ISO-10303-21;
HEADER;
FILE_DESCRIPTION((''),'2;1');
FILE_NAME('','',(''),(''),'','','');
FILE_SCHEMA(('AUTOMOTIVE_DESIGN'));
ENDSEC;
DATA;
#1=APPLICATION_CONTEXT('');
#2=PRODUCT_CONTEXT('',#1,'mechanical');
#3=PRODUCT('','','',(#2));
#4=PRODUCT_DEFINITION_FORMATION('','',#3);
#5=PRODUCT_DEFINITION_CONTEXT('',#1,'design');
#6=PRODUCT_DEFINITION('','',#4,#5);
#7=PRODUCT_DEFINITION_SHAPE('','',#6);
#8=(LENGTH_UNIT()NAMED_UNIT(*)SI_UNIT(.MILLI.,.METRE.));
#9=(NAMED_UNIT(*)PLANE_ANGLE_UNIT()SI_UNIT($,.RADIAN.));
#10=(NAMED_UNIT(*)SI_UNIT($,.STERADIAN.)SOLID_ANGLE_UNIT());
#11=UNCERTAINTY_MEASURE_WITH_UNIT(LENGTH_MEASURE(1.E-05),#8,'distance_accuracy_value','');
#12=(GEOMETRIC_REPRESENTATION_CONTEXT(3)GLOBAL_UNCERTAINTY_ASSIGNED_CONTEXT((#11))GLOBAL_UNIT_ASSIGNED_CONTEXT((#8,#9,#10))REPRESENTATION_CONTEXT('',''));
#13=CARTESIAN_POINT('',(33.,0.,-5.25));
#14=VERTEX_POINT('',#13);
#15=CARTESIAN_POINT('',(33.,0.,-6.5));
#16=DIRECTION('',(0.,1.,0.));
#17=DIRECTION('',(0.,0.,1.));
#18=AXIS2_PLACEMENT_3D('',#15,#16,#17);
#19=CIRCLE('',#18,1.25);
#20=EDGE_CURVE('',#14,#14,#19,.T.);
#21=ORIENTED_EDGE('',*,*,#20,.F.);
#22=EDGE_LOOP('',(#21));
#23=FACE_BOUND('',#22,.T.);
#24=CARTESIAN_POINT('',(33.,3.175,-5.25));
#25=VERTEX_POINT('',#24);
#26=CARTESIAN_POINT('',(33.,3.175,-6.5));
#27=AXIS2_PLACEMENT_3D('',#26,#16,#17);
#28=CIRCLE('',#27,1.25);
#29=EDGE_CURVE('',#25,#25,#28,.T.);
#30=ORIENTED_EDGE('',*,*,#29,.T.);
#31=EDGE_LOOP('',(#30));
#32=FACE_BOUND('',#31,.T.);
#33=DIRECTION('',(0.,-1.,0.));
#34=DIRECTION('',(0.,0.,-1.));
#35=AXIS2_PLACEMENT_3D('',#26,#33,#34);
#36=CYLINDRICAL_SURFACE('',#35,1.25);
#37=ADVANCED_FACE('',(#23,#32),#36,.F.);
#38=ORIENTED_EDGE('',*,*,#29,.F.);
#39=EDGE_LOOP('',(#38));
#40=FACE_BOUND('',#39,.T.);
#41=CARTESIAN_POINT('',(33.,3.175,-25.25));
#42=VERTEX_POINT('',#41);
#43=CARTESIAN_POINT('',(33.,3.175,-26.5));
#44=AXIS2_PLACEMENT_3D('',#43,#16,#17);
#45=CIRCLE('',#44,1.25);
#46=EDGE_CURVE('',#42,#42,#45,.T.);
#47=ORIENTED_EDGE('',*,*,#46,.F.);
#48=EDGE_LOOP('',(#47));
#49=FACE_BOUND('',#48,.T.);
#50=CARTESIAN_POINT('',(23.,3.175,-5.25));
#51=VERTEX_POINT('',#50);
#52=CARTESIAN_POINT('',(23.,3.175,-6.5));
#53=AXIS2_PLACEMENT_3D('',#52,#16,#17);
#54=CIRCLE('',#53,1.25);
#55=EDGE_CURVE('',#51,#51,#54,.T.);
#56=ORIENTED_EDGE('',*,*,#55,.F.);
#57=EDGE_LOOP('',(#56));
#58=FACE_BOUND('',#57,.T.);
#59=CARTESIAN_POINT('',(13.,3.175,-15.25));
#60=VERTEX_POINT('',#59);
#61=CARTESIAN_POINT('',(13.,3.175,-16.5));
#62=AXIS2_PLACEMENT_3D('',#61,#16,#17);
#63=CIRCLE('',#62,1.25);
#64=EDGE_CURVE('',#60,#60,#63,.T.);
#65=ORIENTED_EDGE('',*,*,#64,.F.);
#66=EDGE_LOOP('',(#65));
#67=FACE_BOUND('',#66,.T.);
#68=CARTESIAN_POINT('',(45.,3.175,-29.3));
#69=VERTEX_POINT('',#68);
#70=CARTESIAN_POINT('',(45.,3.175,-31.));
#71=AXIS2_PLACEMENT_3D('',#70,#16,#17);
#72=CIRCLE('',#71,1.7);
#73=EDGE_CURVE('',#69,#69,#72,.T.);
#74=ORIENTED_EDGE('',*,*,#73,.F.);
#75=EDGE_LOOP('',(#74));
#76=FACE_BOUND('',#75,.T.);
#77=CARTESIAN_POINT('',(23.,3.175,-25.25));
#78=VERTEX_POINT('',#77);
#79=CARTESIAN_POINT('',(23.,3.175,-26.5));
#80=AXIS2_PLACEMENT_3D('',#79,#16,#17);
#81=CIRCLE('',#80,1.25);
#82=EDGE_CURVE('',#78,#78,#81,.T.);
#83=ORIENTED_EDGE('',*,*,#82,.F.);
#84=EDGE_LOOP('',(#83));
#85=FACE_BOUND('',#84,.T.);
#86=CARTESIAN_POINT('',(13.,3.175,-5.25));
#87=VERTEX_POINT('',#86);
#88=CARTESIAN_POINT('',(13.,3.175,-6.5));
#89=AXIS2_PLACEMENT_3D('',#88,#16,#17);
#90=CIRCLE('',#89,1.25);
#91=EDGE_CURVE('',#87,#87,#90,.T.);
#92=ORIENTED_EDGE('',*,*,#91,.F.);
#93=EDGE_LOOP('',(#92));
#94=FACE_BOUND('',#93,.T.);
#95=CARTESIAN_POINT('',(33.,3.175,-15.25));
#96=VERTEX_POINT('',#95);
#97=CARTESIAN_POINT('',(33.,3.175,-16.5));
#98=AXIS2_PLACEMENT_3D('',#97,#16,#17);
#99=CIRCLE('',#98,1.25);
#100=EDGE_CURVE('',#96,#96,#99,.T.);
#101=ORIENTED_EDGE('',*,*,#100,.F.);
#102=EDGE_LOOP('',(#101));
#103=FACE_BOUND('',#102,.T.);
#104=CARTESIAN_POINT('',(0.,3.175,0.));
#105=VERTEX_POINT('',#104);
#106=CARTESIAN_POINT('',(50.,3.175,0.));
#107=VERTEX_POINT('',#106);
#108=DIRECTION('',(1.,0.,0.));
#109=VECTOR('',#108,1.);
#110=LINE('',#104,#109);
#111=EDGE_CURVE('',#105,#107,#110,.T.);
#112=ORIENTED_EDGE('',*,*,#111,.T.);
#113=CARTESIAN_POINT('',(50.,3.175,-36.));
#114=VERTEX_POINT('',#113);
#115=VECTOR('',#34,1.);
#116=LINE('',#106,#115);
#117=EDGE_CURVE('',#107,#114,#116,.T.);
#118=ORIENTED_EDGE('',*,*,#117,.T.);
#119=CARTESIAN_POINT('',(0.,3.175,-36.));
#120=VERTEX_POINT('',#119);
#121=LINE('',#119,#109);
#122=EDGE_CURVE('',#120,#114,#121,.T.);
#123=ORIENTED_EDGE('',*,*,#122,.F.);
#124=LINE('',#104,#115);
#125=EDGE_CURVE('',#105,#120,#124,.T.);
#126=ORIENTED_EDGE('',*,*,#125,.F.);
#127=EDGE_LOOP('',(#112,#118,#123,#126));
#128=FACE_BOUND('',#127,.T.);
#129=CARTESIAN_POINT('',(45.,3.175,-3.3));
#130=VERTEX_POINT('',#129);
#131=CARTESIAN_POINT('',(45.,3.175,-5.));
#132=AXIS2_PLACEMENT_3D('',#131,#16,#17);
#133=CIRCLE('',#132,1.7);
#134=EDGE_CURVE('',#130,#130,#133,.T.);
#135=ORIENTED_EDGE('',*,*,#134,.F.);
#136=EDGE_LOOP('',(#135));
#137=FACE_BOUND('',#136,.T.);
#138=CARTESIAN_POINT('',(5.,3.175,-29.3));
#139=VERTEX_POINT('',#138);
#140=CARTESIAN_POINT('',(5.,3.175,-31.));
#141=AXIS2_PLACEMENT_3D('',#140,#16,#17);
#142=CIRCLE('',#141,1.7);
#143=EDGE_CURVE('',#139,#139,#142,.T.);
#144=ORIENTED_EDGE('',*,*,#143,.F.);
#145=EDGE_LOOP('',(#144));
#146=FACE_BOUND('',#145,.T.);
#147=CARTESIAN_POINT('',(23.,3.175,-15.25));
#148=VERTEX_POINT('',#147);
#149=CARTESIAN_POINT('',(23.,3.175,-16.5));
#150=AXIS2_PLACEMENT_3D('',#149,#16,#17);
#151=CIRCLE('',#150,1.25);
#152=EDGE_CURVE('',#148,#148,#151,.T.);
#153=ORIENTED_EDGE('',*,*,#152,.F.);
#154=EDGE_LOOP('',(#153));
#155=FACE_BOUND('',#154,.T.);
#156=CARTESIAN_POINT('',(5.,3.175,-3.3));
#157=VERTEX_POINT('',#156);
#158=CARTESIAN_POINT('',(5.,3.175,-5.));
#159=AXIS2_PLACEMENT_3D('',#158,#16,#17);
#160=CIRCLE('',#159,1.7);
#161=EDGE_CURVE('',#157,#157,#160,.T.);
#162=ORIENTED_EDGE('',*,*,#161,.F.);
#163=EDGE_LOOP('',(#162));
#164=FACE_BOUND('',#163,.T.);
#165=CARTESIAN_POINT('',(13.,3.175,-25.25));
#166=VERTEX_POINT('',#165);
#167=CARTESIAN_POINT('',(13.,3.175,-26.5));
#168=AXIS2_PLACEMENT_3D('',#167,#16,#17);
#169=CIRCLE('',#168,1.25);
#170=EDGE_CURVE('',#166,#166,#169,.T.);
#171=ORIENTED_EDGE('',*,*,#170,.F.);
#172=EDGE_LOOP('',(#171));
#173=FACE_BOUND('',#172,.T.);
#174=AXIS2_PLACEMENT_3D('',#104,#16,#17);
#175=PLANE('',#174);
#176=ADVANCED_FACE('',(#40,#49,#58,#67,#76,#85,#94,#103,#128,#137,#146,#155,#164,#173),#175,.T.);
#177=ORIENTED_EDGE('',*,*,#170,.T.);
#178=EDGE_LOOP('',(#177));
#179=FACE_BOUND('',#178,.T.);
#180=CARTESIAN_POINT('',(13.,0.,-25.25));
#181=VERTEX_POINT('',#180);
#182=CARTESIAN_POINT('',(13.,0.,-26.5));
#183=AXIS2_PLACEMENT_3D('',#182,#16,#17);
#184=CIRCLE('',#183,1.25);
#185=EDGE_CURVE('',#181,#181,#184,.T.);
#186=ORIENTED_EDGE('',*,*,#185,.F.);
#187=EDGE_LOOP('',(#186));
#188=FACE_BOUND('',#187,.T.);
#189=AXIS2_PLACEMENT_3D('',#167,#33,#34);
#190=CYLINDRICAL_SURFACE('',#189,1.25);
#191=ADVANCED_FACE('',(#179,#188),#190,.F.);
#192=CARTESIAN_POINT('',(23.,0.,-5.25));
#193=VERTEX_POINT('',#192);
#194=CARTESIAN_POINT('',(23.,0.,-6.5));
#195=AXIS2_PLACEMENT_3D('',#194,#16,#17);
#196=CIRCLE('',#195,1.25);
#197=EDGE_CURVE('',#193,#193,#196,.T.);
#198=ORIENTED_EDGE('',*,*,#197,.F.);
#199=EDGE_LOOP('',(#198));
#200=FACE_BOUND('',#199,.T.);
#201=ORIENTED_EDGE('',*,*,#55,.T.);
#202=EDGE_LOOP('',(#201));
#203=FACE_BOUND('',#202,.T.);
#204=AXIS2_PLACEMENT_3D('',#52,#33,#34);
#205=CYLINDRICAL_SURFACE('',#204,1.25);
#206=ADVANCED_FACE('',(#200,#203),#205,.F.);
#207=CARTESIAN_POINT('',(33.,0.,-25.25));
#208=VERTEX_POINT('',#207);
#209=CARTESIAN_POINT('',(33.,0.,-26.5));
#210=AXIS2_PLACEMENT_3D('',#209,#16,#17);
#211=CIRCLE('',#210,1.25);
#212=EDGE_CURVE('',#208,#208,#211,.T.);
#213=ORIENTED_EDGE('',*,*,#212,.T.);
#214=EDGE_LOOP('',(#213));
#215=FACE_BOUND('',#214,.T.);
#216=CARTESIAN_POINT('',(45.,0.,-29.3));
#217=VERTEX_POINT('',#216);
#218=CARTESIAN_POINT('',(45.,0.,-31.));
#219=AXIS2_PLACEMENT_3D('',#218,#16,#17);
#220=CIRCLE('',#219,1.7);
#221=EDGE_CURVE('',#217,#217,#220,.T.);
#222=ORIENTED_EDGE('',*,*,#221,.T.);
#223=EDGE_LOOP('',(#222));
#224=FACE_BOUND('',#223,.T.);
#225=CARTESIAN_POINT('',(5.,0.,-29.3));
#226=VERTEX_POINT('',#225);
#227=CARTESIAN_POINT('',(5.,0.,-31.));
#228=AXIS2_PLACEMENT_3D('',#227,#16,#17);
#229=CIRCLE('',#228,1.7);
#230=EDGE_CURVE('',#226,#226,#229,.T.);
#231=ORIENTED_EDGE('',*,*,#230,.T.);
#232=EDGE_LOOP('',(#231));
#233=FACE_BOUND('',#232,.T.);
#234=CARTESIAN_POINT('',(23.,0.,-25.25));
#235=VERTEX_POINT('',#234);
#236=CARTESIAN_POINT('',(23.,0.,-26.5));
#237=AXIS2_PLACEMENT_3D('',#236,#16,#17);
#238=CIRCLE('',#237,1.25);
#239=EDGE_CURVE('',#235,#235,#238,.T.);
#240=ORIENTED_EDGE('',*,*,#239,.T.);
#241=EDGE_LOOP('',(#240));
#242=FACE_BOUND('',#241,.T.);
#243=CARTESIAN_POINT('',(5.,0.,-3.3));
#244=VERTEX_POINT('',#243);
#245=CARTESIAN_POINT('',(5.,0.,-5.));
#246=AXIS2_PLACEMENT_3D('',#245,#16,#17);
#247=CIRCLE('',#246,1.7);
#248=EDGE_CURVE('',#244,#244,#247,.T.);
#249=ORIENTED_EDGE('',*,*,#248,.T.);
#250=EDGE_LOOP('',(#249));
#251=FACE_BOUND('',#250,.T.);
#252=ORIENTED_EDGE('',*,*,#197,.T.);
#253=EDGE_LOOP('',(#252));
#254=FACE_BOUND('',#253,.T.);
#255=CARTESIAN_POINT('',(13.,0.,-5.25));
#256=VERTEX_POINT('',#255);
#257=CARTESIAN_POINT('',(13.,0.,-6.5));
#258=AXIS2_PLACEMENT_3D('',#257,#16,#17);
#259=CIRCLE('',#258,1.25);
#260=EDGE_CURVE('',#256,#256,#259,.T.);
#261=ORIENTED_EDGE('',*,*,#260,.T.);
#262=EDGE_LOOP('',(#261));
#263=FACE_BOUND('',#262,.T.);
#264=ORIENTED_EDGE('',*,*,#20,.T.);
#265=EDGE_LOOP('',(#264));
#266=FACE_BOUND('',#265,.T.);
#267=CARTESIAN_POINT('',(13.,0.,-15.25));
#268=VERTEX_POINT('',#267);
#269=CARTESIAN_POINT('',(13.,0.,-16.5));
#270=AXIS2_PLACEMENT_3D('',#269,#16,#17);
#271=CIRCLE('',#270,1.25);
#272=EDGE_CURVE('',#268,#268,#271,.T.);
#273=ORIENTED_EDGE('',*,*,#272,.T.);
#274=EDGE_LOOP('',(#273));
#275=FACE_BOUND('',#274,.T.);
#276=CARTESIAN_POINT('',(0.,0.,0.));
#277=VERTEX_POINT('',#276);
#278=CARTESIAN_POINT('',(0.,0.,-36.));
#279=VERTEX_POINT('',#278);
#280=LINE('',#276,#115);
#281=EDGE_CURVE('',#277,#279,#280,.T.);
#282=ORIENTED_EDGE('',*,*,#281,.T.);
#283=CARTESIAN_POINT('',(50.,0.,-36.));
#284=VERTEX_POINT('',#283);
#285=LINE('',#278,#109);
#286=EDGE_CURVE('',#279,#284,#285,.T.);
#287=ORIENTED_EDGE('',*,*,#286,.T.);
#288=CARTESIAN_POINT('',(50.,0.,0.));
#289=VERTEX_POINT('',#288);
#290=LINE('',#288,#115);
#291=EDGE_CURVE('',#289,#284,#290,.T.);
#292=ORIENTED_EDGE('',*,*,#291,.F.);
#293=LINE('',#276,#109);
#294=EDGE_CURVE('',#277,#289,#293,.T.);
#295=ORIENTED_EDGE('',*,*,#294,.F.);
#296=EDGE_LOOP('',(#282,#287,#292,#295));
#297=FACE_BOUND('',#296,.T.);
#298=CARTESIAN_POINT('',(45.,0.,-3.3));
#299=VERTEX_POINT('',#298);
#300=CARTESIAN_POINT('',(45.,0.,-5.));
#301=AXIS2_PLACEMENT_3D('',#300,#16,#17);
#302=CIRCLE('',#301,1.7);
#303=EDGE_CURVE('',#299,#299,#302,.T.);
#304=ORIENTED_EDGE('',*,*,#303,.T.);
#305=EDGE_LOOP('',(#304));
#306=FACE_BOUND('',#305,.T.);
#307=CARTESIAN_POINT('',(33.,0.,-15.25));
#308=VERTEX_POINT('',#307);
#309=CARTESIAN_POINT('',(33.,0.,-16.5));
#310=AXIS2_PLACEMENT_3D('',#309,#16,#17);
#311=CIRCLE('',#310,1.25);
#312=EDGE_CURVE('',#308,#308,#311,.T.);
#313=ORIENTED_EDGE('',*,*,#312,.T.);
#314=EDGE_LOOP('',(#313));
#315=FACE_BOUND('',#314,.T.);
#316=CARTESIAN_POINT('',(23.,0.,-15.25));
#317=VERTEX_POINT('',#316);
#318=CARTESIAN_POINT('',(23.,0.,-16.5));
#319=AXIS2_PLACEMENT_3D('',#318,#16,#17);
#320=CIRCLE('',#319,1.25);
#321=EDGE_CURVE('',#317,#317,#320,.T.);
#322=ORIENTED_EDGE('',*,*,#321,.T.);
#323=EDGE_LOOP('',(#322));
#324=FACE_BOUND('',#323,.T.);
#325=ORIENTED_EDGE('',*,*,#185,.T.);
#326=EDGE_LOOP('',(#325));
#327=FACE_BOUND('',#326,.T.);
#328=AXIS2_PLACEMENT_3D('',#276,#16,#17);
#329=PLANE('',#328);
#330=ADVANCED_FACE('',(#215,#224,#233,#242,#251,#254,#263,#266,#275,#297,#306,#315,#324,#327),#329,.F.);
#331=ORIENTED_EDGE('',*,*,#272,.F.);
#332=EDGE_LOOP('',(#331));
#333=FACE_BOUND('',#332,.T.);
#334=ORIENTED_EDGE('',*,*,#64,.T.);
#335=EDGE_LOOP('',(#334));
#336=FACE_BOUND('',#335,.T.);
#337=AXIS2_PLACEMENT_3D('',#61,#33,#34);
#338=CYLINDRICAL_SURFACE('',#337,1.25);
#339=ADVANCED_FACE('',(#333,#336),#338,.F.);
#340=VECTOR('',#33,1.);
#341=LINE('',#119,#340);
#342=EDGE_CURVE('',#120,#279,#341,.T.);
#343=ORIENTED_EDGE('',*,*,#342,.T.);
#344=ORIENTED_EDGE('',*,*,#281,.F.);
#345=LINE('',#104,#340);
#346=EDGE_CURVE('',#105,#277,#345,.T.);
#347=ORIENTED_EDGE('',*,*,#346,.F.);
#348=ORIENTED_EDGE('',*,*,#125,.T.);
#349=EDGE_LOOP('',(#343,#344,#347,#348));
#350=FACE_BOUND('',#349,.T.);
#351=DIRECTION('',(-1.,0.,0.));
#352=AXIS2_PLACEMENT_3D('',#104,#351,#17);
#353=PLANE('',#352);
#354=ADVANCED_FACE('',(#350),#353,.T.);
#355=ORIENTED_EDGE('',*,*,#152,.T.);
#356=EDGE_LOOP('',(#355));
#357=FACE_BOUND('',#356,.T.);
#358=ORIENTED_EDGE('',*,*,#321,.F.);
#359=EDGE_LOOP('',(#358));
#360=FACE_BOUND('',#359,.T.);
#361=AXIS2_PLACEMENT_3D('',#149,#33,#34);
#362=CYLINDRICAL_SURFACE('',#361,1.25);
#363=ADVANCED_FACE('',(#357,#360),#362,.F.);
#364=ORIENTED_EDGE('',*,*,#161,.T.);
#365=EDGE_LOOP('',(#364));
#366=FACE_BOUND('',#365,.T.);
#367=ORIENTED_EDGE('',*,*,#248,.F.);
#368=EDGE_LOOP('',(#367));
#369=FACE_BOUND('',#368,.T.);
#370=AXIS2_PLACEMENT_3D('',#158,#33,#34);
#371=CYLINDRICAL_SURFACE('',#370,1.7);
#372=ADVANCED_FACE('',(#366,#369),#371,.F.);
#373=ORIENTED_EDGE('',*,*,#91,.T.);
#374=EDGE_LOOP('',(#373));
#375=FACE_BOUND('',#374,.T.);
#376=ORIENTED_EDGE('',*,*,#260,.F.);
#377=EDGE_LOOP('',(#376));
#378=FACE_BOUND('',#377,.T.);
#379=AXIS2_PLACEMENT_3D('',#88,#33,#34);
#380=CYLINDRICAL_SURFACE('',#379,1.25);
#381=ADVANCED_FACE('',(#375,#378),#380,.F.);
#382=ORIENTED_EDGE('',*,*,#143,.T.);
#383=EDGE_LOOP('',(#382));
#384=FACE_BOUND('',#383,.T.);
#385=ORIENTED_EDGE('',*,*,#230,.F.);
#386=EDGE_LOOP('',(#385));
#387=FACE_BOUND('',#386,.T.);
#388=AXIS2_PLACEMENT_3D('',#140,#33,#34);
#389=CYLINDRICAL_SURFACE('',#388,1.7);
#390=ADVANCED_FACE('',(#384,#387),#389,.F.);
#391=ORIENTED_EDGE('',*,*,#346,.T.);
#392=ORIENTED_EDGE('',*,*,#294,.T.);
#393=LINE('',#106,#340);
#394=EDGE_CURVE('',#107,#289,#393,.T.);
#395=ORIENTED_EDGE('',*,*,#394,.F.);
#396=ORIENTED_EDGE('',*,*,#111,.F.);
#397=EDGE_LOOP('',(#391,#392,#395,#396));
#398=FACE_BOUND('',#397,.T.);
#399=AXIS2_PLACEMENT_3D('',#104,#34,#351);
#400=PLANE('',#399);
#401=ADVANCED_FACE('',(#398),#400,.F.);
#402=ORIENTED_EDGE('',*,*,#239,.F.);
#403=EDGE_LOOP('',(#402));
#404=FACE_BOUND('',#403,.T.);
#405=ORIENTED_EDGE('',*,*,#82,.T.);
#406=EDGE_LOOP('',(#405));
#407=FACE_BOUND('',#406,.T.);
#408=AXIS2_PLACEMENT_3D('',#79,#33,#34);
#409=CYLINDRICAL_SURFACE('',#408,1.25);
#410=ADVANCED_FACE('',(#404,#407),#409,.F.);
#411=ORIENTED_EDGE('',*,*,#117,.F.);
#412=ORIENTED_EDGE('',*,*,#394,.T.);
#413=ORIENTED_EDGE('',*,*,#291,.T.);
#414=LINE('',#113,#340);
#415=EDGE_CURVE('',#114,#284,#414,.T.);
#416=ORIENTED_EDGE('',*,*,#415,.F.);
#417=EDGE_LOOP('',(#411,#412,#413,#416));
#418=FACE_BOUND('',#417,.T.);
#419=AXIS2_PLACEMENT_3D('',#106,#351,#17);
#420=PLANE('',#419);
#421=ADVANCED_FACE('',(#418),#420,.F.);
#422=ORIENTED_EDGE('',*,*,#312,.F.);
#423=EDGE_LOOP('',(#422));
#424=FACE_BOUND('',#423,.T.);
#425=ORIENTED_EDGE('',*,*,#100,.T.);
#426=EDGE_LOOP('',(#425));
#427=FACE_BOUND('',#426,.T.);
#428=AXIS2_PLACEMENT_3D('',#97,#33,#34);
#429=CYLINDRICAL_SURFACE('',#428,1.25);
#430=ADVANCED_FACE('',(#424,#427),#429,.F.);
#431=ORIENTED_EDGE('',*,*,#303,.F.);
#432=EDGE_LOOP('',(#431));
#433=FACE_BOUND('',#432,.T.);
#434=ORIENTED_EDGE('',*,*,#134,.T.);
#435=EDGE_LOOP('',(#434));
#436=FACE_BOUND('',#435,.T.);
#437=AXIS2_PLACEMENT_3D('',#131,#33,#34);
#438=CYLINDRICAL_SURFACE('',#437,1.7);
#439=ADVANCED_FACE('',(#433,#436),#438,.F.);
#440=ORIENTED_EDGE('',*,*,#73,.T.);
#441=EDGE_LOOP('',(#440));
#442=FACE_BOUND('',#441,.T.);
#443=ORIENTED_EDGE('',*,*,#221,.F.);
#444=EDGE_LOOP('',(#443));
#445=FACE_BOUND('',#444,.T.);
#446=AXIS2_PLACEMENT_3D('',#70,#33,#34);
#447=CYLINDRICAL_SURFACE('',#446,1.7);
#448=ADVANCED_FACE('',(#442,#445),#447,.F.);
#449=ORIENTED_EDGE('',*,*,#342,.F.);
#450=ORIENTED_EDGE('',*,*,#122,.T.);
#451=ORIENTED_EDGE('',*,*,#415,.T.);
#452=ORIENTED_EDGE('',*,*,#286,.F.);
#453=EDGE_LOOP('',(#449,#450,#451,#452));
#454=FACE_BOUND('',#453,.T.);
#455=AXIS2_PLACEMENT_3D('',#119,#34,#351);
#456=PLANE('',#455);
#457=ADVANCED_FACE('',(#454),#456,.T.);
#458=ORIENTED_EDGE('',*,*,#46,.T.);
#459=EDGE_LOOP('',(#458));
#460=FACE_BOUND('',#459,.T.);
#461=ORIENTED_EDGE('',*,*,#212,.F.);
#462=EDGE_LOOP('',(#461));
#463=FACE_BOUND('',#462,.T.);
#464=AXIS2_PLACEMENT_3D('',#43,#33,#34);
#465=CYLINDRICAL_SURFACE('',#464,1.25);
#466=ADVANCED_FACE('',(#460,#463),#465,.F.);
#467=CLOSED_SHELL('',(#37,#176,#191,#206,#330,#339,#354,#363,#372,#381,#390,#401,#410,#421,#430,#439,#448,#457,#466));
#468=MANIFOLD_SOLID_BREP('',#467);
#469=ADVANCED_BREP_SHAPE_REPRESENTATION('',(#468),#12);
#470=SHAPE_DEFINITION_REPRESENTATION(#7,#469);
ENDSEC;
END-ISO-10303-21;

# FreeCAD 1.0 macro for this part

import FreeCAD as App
import Part
import Sketcher
from FreeCAD import Vector

doc = App.newDocument("Part")
body = doc.addObject("PartDesign::Body", "Body")

# Sketch on XZ plane
sketch1 = doc.addObject("Sketcher::SketchObject", "Sketch")
body.addObject(sketch1)
sketch1.AttachmentSupport = (doc.XZ_Plane, [""])
sketch1.MapMode = "FlatFace"
sketch1.addGeometry([
    Part.LineSegment(Vector(0, -36, 0), Vector(0, 0, 0)),  # 0
    Part.LineSegment(Vector(0, 0, 0), Vector(50, 0, 0)),  # 1
    Part.LineSegment(Vector(50, 0, 0), Vector(50, -36, 0)),  # 2
    Part.LineSegment(Vector(50, -36, 0), Vector(0, -36, 0)),  # 3
    Part.Circle(Vector(5, -5, 0), Vector(0, 0, 1), 1.7),  # 4
    Part.Circle(Vector(13, -6.5, 0), Vector(0, 0, 1), 1.2),  # 5
    Part.Circle(Vector(23, -6.5, 0), Vector(0, 0, 1), 1.2),  # 6
    Part.Circle(Vector(13, -16.5, 0), Vector(0, 0, 1), 1.2),  # 7
    Part.Circle(Vector(23, -16.5, 0), Vector(0, 0, 1), 1.2),  # 8
    Part.Circle(Vector(33, -6.5, 0), Vector(0, 0, 1), 1.2),  # 9
    Part.Circle(Vector(45, -5, 0), Vector(0, 0, 1), 1.7),  # 10
    Part.Circle(Vector(33, -16.5, 0), Vector(0, 0, 1), 1.2),  # 11
    Part.Circle(Vector(13, -26.5, 0), Vector(0, 0, 1), 1.2),  # 12
    Part.Circle(Vector(5, -31, 0), Vector(0, 0, 1), 1.7),  # 13
    Part.Circle(Vector(23, -26.5, 0), Vector(0, 0, 1), 1.2),  # 14
    Part.Circle(Vector(33, -26.5, 0), Vector(0, 0, 1), 1.2),  # 15
    Part.Circle(Vector(45, -31, 0), Vector(0, 0, 1), 1.7),  # 16
], False)
sketch1.addConstraint([
    Sketcher.Constraint("Coincident", 0, 2, 1, 1),
    Sketcher.Constraint("Coincident", 1, 2, 2, 1),
    Sketcher.Constraint("Coincident", 2, 2, 3, 1),
    Sketcher.Constraint("Coincident", 3, 2, 0, 1),
    Sketcher.Constraint("Vertical", 0),
    Sketcher.Constraint("Horizontal", 1),
    Sketcher.Constraint("Vertical", 2),
    Sketcher.Constraint("Horizontal", 3),
    Sketcher.Constraint("Coincident", 0, 2, -1, 1),
    Sketcher.Constraint("Equal", 5, 6),
    Sketcher.Constraint("Equal", 6, 7),
    Sketcher.Constraint("Equal", 7, 8),
    Sketcher.Constraint("Equal", 8, 9),
    Sketcher.Constraint("Equal", 4, 10),
    Sketcher.Constraint("Equal", 9, 11),
    Sketcher.Constraint("Equal", 11, 12),
    Sketcher.Constraint("Equal", 10, 13),
    Sketcher.Constraint("Equal", 12, 14),
    Sketcher.Constraint("Equal", 14, 15),
    Sketcher.Constraint("Equal", 13, 16),
    Sketcher.Constraint("Horizontal", 5, 3, 6, 3),
    Sketcher.Constraint("Horizontal", 7, 3, 8, 3),
    Sketcher.Constraint("Horizontal", 6, 3, 9, 3),
    Sketcher.Constraint("Horizontal", 4, 3, 10, 3),
    Sketcher.Constraint("Horizontal", 8, 3, 11, 3),
    Sketcher.Constraint("Horizontal", 12, 3, 14, 3),
    Sketcher.Constraint("Horizontal", 14, 3, 15, 3),
    Sketcher.Constraint("Horizontal", 13, 3, 16, 3),
    Sketcher.Constraint("Vertical", 5, 3, 7, 3),
    Sketcher.Constraint("Vertical", 6, 3, 8, 3),
    Sketcher.Constraint("Vertical", 9, 3, 11, 3),
    Sketcher.Constraint("Vertical", 7, 3, 12, 3),
    Sketcher.Constraint("Vertical", 4, 3, 13, 3),
    Sketcher.Constraint("Vertical", 8, 3, 14, 3),
    Sketcher.Constraint("Vertical", 11, 3, 15, 3),
    Sketcher.Constraint("Vertical", 10, 3, 16, 3),
    Sketcher.Constraint("Diameter", 4, 3.4),
    Sketcher.Constraint("Diameter", 5, 2.5),
    Sketcher.Constraint("DistanceX", 1, 1, 1, 2, 50.0),
    Sketcher.Constraint("DistanceY", 0, 1, 0, 2, 36.0),
    Sketcher.Constraint("DistanceX", -1, 1, 4, 3, 5.0),
    Sketcher.Constraint("DistanceY", 4, 3, -1, 1, 5.0),
    Sketcher.Constraint("DistanceX", -1, 1, 5, 3, 13.0),
    Sketcher.Constraint("DistanceX", -1, 1, 6, 3, 23.0),
    Sketcher.Constraint("DistanceX", -1, 1, 9, 3, 33.0),
    Sketcher.Constraint("DistanceX", -1, 1, 10, 3, 45.0),
    Sketcher.Constraint("DistanceY", 13, 3, -1, 1, 31.0),
    Sketcher.Constraint("DistanceY", 7, 3, 5, 3, 10.0),
    Sketcher.Constraint("DistanceY", 12, 3, 7, 3, 10.0),
    Sketcher.Constraint("DistanceY", 5, 3, -1, 1, 6.5),
])
pad1 = doc.addObject("PartDesign::Pad", "Pad")
body.addObject(pad1)
pad1.Profile = sketch1
pad1.Length = 3.175
pad1.Reversed = True

doc.recompute()
